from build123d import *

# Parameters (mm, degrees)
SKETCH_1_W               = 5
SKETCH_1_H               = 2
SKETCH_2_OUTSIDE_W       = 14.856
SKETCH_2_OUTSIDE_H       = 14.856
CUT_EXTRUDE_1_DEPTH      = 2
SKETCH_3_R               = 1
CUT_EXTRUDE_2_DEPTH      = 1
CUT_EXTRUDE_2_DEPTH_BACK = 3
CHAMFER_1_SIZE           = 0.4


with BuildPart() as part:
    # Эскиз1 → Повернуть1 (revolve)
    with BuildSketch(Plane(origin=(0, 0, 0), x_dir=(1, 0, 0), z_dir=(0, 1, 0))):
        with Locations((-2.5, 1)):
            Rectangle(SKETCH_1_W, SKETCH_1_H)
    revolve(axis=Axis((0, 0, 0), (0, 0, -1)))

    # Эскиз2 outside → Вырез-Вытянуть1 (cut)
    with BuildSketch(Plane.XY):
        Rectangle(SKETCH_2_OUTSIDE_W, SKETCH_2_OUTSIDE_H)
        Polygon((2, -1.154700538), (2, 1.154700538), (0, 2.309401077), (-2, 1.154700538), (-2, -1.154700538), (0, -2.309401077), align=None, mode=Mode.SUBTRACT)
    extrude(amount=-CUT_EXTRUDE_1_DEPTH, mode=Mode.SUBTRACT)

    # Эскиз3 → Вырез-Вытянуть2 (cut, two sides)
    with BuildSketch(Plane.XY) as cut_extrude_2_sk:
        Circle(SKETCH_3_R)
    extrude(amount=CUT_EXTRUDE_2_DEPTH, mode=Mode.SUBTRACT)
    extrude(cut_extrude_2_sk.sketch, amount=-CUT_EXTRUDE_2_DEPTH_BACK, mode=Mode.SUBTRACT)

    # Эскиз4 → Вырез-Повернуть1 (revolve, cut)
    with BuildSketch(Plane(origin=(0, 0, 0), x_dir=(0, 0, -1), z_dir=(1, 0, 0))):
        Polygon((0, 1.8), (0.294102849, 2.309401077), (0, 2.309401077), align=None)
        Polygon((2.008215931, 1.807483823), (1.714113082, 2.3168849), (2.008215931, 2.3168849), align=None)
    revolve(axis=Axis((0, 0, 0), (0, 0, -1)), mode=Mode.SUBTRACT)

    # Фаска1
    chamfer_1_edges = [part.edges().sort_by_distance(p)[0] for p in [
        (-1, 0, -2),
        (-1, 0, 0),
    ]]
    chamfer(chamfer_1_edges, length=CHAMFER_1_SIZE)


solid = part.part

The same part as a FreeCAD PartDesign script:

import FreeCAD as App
import Part
import Sketcher
from FreeCAD import Vector
Q = App.Units.Quantity


def edges_at(feature, points):
    """Names of the edges that pass closest to the given points."""
    edges = feature.Shape.Edges
    near = lambda p: min(range(len(edges)), key=lambda i: edges[i].distToShape(Part.Vertex(*p))[0])
    return sorted({f"Edge{near(p) + 1}" for p in points})

doc = App.newDocument("Part")
body = doc.addObject("PartDesign::Body", "Body")

# Sketch on XZ plane
sketch1 = body.newObject("Sketcher::SketchObject", "Sketch")
sketch1.AttachmentSupport = (doc.getObject("XZ_Plane"), [""])
sketch1.MapMode = "FlatFace"
sketch1.addGeometry(Part.LineSegment(Vector(-5, -2, 0), Vector(-5, 0, 0)), False)
sketch1.addGeometry(Part.LineSegment(Vector(-5, 0, 0), Vector(0, 0, 0)), False)
sketch1.addGeometry(Part.LineSegment(Vector(0, 0, 0), Vector(0, -2, 0)), False)
sketch1.addGeometry(Part.LineSegment(Vector(0, -2, 0), Vector(-5, -2, 0)), False)
sketch1.addConstraint(Sketcher.Constraint("Coincident", 0, 2, 1, 1))
sketch1.addConstraint(Sketcher.Constraint("Coincident", 1, 2, 2, 1))
sketch1.addConstraint(Sketcher.Constraint("Coincident", 2, 2, 3, 1))
sketch1.addConstraint(Sketcher.Constraint("Coincident", 3, 2, 0, 1))
sketch1.addConstraint(Sketcher.Constraint("Vertical", 0))
sketch1.addConstraint(Sketcher.Constraint("Horizontal", 1))
sketch1.addConstraint(Sketcher.Constraint("Vertical", 2))
sketch1.addConstraint(Sketcher.Constraint("Horizontal", 3))
sketch1.addConstraint(Sketcher.Constraint("Coincident", 1, 2, -1, 1))
sketch1.addConstraint(Sketcher.Constraint("DistanceX", 1, 1, 1, 2, Q("5 mm")))
sketch1.addConstraint(Sketcher.Constraint("DistanceY", 0, 1, 0, 2, Q("2 mm")))
revolution = body.newObject("PartDesign::Revolution", "Revolution")
revolution.Profile = sketch1
revolution.ReferenceAxis = (sketch1, ["V_Axis"])
revolution.Angle = 360

# Sketch on XY plane
sketch2 = body.newObject("Sketcher::SketchObject", "Sketch001")
sketch2.AttachmentSupport = (doc.getObject("XY_Plane"), [""])
sketch2.MapMode = "FlatFace"
sketch2.addGeometry(Part.LineSegment(Vector(-7.4, 7.4, 0), Vector(-7.4, -7.4, 0)), False)
sketch2.addGeometry(Part.LineSegment(Vector(-7.4, -7.4, 0), Vector(7.4, -7.4, 0)), False)
sketch2.addGeometry(Part.LineSegment(Vector(7.4, -7.4, 0), Vector(7.4, 7.4, 0)), False)
sketch2.addGeometry(Part.LineSegment(Vector(7.4, 7.4, 0), Vector(-7.4, 7.4, 0)), False)
sketch2.addGeometry(Part.LineSegment(Vector(2, 1.2, 0), Vector(2, -1.2, 0)), False)
sketch2.addGeometry(Part.LineSegment(Vector(2, -1.2, 0), Vector(0, -2.3, 0)), False)
sketch2.addGeometry(Part.LineSegment(Vector(0, -2.3, 0), Vector(-2, -1.2, 0)), False)
sketch2.addGeometry(Part.LineSegment(Vector(-2, -1.2, 0), Vector(-2, 1.2, 0)), False)
sketch2.addGeometry(Part.LineSegment(Vector(-2, 1.2, 0), Vector(0, 2.3, 0)), False)
sketch2.addGeometry(Part.LineSegment(Vector(0, 2.3, 0), Vector(2, 1.2, 0)), False)
sketch2.addConstraint(Sketcher.Constraint("Coincident", 0, 2, 1, 1))
sketch2.addConstraint(Sketcher.Constraint("Coincident", 1, 2, 2, 1))
sketch2.addConstraint(Sketcher.Constraint("Coincident", 2, 2, 3, 1))
sketch2.addConstraint(Sketcher.Constraint("Coincident", 3, 2, 0, 1))
sketch2.addConstraint(Sketcher.Constraint("Coincident", 4, 2, 5, 1))
sketch2.addConstraint(Sketcher.Constraint("Coincident", 5, 2, 6, 1))
sketch2.addConstraint(Sketcher.Constraint("Coincident", 6, 2, 7, 1))
sketch2.addConstraint(Sketcher.Constraint("Coincident", 7, 2, 8, 1))
sketch2.addConstraint(Sketcher.Constraint("Coincident", 8, 2, 9, 1))
sketch2.addConstraint(Sketcher.Constraint("Coincident", 9, 2, 4, 1))
sketch2.addConstraint(Sketcher.Constraint("Vertical", 0))
sketch2.addConstraint(Sketcher.Constraint("Horizontal", 1))
sketch2.addConstraint(Sketcher.Constraint("Vertical", 2))
sketch2.addConstraint(Sketcher.Constraint("Horizontal", 3))
sketch2.addConstraint(Sketcher.Constraint("Vertical", 4))
sketch2.addConstraint(Sketcher.Constraint("Vertical", 7))
sketch2.addConstraint(Sketcher.Constraint("Symmetric", 0, 2, 2, 2, -1, 1))
sketch2.addConstraint(Sketcher.Constraint("Symmetric", 4, 2, 7, 2, -1, 1))
sketch2.addConstraint(Sketcher.Constraint("Symmetric", 5, 2, 8, 2, -1, 1))
sketch2.addConstraint(Sketcher.Constraint("PointOnObject", 5, 2, -2))
sketch2.addConstraint(Sketcher.Constraint("Parallel", 6, 9))
sketch2.addConstraint(Sketcher.Constraint("Horizontal", 4, 2, 6, 2))
sketch2.addConstraint(Sketcher.Constraint("Equal", 3, 0))
sketch2.addConstraint(Sketcher.Constraint("Angle", 5, Q("-150 deg")))
sketch2.addConstraint(Sketcher.Constraint("DistanceX", -1, 1, 4, 2, Q("2 mm")))
sketch2.addConstraint(Sketcher.Constraint("DistanceX", 1, 1, 1, 2, Q("14.856 mm")))
sketch2.addConstraint(Sketcher.Constraint("DistanceY", 4, 2, 4, 1, Q("2.309401 mm")))
pocket1 = body.newObject("PartDesign::Pocket", "Pocket")
pocket1.Profile = sketch2
pocket1.Length = 2

# Sketch on XY plane
sketch3 = body.newObject("Sketcher::SketchObject", "Sketch002")
sketch3.AttachmentSupport = (doc.getObject("XY_Plane"), [""])
sketch3.MapMode = "FlatFace"
sketch3.addGeometry(Part.Circle(Vector(0, 0, 0), Vector(0, 0, 1), 1), False)
sketch3.addConstraint(Sketcher.Constraint("Coincident", 0, 3, -1, 1))
sketch3.addConstraint(Sketcher.Constraint("Diameter", 0, Q("2 mm")))
pocket2 = body.newObject("PartDesign::Pocket", "Pocket001")
pocket2.Profile = sketch3
pocket2.Type = "ThroughAll"
pocket2.Midplane = True

# Sketch on YZ plane
sketch4 = body.newObject("Sketcher::SketchObject", "Sketch003")
sketch4.AttachmentSupport = (doc.getObject("YZ_Plane"), [""])
sketch4.MapMode = "FlatFace"
sketch4.addGeometry(Part.LineSegment(Vector(1.8, 0, 0), Vector(2.31, -0.29, 0)), False)
sketch4.addGeometry(Part.LineSegment(Vector(2.31, -0.29, 0), Vector(2.31, 0, 0)), False)
sketch4.addGeometry(Part.LineSegment(Vector(2.31, 0, 0), Vector(1.8, 0, 0)), False)
sketch4.addGeometry(Part.LineSegment(Vector(2.32, -1.71, 0), Vector(1.81, -2.01, 0)), False)
sketch4.addGeometry(Part.LineSegment(Vector(1.81, -2.01, 0), Vector(2.32, -2.01, 0)), False)
sketch4.addGeometry(Part.LineSegment(Vector(2.32, -2.01, 0), Vector(2.32, -1.71, 0)), False)
sketch4.addConstraint(Sketcher.Constraint("Coincident", 0, 2, 1, 1))
sketch4.addConstraint(Sketcher.Constraint("Coincident", 1, 2, 2, 1))
sketch4.addConstraint(Sketcher.Constraint("Coincident", 2, 2, 0, 1))
sketch4.addConstraint(Sketcher.Constraint("Coincident", 3, 2, 4, 1))
sketch4.addConstraint(Sketcher.Constraint("Coincident", 4, 2, 5, 1))
sketch4.addConstraint(Sketcher.Constraint("Coincident", 5, 2, 3, 1))
sketch4.addConstraint(Sketcher.Constraint("Vertical", 1))
sketch4.addConstraint(Sketcher.Constraint("Horizontal", 2))
sketch4.addConstraint(Sketcher.Constraint("Horizontal", 4))
sketch4.addConstraint(Sketcher.Constraint("Vertical", 5))
sketch4.addConstraint(Sketcher.Constraint("PointOnObject", 1, 2, -1))
sketch4.addConstraint(Sketcher.Constraint("Equal", 2, 4))
sketch4.addConstraint(Sketcher.Constraint("Equal", 1, 5))
sketch4.addConstraint(Sketcher.Constraint("Angle", 0, Q("-30 deg")))
sketch4.addConstraint(Sketcher.Constraint("DistanceX", -1, 1, 2, 2, Q("1.8 mm")))
sketch4.addConstraint(Sketcher.Constraint("DistanceX", 2, 2, 2, 1, Q("0.509401 mm")))
sketch4.addConstraint(Sketcher.Constraint("DistanceY", 5, 2, 0, 2, Q("1.42001 mm")))
sketch4.addConstraint(Sketcher.Constraint("DistanceX", -1, 1, 3, 2, Q("1.807484 mm")))
groove = body.newObject("PartDesign::Groove", "Groove")
groove.Profile = sketch4
groove.ReferenceAxis = (sketch4, ["V_Axis"])
groove.Angle = 360
doc.recompute()

chamfer = body.newObject("PartDesign::Chamfer", "Chamfer")
chamfer.Base = (groove, edges_at(groove, [(-1, 0, -2), (-1, 0, 0)]))
chamfer.Size = 0.4

doc.recompute()
